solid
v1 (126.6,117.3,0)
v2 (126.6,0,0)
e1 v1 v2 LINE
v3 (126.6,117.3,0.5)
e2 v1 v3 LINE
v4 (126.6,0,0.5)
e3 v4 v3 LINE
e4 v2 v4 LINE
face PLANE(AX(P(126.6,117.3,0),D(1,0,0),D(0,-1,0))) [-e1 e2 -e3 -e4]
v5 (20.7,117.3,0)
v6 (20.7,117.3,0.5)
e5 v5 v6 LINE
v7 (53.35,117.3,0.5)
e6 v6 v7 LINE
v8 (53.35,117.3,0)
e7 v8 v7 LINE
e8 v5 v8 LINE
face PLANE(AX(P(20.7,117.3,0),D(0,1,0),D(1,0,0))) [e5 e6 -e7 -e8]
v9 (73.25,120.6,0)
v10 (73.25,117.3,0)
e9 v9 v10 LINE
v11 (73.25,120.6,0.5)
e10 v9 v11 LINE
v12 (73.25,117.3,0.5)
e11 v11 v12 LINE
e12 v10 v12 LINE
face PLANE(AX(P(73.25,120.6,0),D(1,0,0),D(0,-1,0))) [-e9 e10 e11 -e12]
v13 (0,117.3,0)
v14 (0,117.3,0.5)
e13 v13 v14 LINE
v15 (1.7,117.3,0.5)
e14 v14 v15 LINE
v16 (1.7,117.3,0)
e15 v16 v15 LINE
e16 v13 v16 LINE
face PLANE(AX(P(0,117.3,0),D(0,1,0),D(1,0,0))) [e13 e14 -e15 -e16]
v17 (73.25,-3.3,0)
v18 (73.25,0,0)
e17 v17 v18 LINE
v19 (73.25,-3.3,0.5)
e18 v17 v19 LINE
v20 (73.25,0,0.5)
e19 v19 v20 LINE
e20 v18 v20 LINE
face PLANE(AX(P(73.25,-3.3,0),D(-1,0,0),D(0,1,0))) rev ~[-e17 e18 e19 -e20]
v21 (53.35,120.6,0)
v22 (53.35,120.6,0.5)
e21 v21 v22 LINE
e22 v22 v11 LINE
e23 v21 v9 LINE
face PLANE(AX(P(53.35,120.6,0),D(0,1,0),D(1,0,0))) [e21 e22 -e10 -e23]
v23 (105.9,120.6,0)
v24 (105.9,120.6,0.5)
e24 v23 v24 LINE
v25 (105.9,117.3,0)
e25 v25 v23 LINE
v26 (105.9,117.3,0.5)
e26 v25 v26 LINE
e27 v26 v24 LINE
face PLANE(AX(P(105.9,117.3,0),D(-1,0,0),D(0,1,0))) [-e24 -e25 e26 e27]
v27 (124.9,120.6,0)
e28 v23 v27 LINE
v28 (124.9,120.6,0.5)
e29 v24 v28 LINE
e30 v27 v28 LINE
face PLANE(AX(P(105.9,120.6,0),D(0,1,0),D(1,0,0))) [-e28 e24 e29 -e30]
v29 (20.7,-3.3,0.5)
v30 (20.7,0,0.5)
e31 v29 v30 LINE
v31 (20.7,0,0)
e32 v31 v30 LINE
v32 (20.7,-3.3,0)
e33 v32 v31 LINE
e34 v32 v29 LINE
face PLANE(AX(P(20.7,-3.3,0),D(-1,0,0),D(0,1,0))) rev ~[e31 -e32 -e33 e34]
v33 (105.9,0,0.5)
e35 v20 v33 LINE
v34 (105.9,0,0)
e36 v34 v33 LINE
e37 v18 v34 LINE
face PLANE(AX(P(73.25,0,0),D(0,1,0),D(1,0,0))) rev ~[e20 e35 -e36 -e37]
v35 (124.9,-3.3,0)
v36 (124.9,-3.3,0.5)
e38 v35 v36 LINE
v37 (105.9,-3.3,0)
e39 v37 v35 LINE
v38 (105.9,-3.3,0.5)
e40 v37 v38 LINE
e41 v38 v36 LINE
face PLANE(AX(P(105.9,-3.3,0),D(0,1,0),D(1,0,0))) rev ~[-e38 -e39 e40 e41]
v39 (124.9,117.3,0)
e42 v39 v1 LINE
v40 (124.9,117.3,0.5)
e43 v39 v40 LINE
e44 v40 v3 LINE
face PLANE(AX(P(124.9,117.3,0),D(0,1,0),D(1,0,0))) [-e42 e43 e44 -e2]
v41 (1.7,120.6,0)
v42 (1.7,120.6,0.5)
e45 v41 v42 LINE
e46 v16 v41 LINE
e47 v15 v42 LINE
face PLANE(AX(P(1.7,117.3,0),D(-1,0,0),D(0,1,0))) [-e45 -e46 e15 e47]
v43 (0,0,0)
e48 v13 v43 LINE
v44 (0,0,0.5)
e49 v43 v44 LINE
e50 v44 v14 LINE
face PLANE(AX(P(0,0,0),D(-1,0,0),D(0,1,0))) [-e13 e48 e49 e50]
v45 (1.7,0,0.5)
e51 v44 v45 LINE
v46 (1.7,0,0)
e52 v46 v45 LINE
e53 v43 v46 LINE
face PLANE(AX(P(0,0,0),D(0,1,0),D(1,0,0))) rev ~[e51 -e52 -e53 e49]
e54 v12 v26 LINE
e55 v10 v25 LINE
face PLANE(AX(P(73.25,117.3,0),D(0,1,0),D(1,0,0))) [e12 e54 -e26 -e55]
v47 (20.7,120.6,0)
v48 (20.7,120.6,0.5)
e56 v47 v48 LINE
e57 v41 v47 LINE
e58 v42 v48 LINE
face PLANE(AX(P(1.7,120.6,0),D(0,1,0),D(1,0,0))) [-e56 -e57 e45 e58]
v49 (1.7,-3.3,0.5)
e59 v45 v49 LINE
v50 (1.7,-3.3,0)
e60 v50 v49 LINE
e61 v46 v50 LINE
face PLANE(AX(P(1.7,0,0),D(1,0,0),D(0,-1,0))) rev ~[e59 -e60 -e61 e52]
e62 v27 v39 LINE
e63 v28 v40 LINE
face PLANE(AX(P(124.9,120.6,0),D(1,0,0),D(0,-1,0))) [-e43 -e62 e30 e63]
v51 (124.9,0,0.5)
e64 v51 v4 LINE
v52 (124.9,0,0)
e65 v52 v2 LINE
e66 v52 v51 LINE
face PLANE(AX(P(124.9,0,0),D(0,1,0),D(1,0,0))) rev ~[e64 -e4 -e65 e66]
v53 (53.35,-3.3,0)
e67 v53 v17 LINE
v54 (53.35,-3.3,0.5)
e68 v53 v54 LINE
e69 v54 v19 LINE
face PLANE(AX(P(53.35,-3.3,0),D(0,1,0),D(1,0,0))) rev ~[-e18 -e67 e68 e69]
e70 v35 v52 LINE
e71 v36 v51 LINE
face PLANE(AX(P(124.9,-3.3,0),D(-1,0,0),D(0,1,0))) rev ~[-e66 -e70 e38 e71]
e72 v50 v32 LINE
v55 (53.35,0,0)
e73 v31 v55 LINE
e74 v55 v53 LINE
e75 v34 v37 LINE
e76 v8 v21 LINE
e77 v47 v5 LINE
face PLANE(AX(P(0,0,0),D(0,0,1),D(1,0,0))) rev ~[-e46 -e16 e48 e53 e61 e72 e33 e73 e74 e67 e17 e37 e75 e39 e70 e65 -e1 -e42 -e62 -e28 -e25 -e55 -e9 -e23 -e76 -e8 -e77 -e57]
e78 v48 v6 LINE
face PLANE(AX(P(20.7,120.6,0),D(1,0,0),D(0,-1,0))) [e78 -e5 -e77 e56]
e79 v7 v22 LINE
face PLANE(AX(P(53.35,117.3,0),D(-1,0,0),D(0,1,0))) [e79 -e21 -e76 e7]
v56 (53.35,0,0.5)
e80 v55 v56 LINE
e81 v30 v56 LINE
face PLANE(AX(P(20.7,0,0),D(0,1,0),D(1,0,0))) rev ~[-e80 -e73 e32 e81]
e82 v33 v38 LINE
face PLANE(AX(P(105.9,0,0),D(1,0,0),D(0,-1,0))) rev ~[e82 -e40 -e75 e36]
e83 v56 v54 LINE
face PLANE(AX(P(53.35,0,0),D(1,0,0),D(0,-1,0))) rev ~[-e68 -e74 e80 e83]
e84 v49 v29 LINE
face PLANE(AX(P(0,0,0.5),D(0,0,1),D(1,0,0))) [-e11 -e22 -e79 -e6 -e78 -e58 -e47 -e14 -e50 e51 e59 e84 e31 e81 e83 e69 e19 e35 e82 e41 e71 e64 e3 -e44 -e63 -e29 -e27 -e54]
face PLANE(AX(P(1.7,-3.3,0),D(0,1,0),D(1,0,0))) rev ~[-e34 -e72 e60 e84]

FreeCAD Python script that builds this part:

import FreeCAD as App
import Part
import Sketcher

V = App.Vector
Q = App.Units.Quantity

doc = App.newDocument("Part")
params = doc.addObject("Spreadsheet::Sheet", "Params")
for row, (alias, value) in enumerate([
    ("sketch1_width", "19 mm"),
    ("sketch1_width2", "19.9 mm"),
    ("sketch1_height", "3.3 mm"),
    ("sketch1_width3", "1.7 mm"),
    ("sketch1_height2", "117.3 mm"),
    ("pad1_length", "0.5 mm"),
], start=1):
    params.set(f"A{row}", alias)
    params.set(f"B{row}", "=" + value)
    params.setAlias(f"B{row}", alias)

body = doc.addObject("PartDesign::Body", "Body")

sketch1 = body.newObject("Sketcher::SketchObject", "Sketch")
sketch1.AttachmentSupport = (doc.getObject("XY_Plane"), [""])
sketch1.MapMode = "FlatFace"
sketch1.addGeometry(Part.LineSegment(V(0, 0, 0), V(1.7, 0, 0)), False)
sketch1.addGeometry(Part.LineSegment(V(1.7, 0, 0), V(1.7, -3.3, 0)), False)
sketch1.addGeometry(Part.LineSegment(V(1.7, -3.3, 0), V(20.7, -3.3, 0)), False)
sketch1.addGeometry(Part.LineSegment(V(20.7, -3.3, 0), V(20.7, 0, 0)), False)
sketch1.addGeometry(Part.LineSegment(V(20.7, 0, 0), V(53.4, 0, 0)), False)
sketch1.addGeometry(Part.LineSegment(V(53.4, 0, 0), V(53.4, -3.3, 0)), False)
sketch1.addGeometry(Part.LineSegment(V(53.4, -3.3, 0), V(73.2, -3.3, 0)), False)
sketch1.addGeometry(Part.LineSegment(V(73.2, -3.3, 0), V(73.2, 0, 0)), False)
sketch1.addGeometry(Part.LineSegment(V(73.2, 0, 0), V(105.9, 0, 0)), False)
sketch1.addGeometry(Part.LineSegment(V(105.9, 0, 0), V(105.9, -3.3, 0)), False)
sketch1.addGeometry(Part.LineSegment(V(105.9, -3.3, 0), V(124.9, -3.3, 0)), False)
sketch1.addGeometry(Part.LineSegment(V(124.9, -3.3, 0), V(124.9, 0, 0)), False)
sketch1.addGeometry(Part.LineSegment(V(124.9, 0, 0), V(126.6, 0, 0)), False)
sketch1.addGeometry(Part.LineSegment(V(126.6, 0, 0), V(126.6, 117.3, 0)), False)
sketch1.addGeometry(Part.LineSegment(V(126.6, 117.3, 0), V(124.9, 117.3, 0)), False)
sketch1.addGeometry(Part.LineSegment(V(124.9, 117.3, 0), V(124.9, 120.6, 0)), False)
sketch1.addGeometry(Part.LineSegment(V(124.9, 120.6, 0), V(105.9, 120.6, 0)), False)
sketch1.addGeometry(Part.LineSegment(V(105.9, 120.6, 0), V(105.9, 117.3, 0)), False)
sketch1.addGeometry(Part.LineSegment(V(105.9, 117.3, 0), V(73.2, 117.3, 0)), False)
sketch1.addGeometry(Part.LineSegment(V(73.2, 117.3, 0), V(73.2, 120.6, 0)), False)
sketch1.addGeometry(Part.LineSegment(V(73.2, 120.6, 0), V(53.4, 120.6, 0)), False)
sketch1.addGeometry(Part.LineSegment(V(53.4, 120.6, 0), V(53.4, 117.3, 0)), False)
sketch1.addGeometry(Part.LineSegment(V(53.4, 117.3, 0), V(20.7, 117.3, 0)), False)
sketch1.addGeometry(Part.LineSegment(V(20.7, 117.3, 0), V(20.7, 120.6, 0)), False)
sketch1.addGeometry(Part.LineSegment(V(20.7, 120.6, 0), V(1.7, 120.6, 0)), False)
sketch1.addGeometry(Part.LineSegment(V(1.7, 120.6, 0), V(1.7, 117.3, 0)), False)
sketch1.addGeometry(Part.LineSegment(V(1.7, 117.3, 0), V(0, 117.3, 0)), False)
sketch1.addGeometry(Part.LineSegment(V(0, 117.3, 0), V(0, 0, 0)), False)
sketch1.addConstraint(Sketcher.Constraint("Coincident", 0, 2, 1, 1))
sketch1.addConstraint(Sketcher.Constraint("Coincident", 1, 2, 2, 1))
sketch1.addConstraint(Sketcher.Constraint("Coincident", 2, 2, 3, 1))
sketch1.addConstraint(Sketcher.Constraint("Coincident", 3, 2, 4, 1))
sketch1.addConstraint(Sketcher.Constraint("Coincident", 4, 2, 5, 1))
sketch1.addConstraint(Sketcher.Constraint("Coincident", 5, 2, 6, 1))
sketch1.addConstraint(Sketcher.Constraint("Coincident", 6, 2, 7, 1))
sketch1.addConstraint(Sketcher.Constraint("Coincident", 7, 2, 8, 1))
sketch1.addConstraint(Sketcher.Constraint("Coincident", 8, 2, 9, 1))
sketch1.addConstraint(Sketcher.Constraint("Coincident", 9, 2, 10, 1))
sketch1.addConstraint(Sketcher.Constraint("Coincident", 10, 2, 11, 1))
sketch1.addConstraint(Sketcher.Constraint("Coincident", 11, 2, 12, 1))
sketch1.addConstraint(Sketcher.Constraint("Coincident", 12, 2, 13, 1))
sketch1.addConstraint(Sketcher.Constraint("Coincident", 13, 2, 14, 1))
sketch1.addConstraint(Sketcher.Constraint("Coincident", 14, 2, 15, 1))
sketch1.addConstraint(Sketcher.Constraint("Coincident", 15, 2, 16, 1))
sketch1.addConstraint(Sketcher.Constraint("Coincident", 16, 2, 17, 1))
sketch1.addConstraint(Sketcher.Constraint("Coincident", 17, 2, 18, 1))
sketch1.addConstraint(Sketcher.Constraint("Coincident", 18, 2, 19, 1))
sketch1.addConstraint(Sketcher.Constraint("Coincident", 19, 2, 20, 1))
sketch1.addConstraint(Sketcher.Constraint("Coincident", 20, 2, 21, 1))
sketch1.addConstraint(Sketcher.Constraint("Coincident", 21, 2, 22, 1))
sketch1.addConstraint(Sketcher.Constraint("Coincident", 22, 2, 23, 1))
sketch1.addConstraint(Sketcher.Constraint("Coincident", 23, 2, 24, 1))
sketch1.addConstraint(Sketcher.Constraint("Coincident", 24, 2, 25, 1))
sketch1.addConstraint(Sketcher.Constraint("Coincident", 25, 2, 26, 1))
sketch1.addConstraint(Sketcher.Constraint("Coincident", 26, 2, 27, 1))
sketch1.addConstraint(Sketcher.Constraint("Coincident", 27, 2, 0, 1))
sketch1.addConstraint(Sketcher.Constraint("Horizontal", 0))
sketch1.addConstraint(Sketcher.Constraint("Vertical", 1))
sketch1.addConstraint(Sketcher.Constraint("Horizontal", 2))
sketch1.addConstraint(Sketcher.Constraint("Vertical", 3))
sketch1.addConstraint(Sketcher.Constraint("Horizontal", 4))
sketch1.addConstraint(Sketcher.Constraint("Vertical", 5))
sketch1.addConstraint(Sketcher.Constraint("Horizontal", 6))
sketch1.addConstraint(Sketcher.Constraint("Vertical", 7))
sketch1.addConstraint(Sketcher.Constraint("Horizontal", 8))
sketch1.addConstraint(Sketcher.Constraint("Vertical", 9))
sketch1.addConstraint(Sketcher.Constraint("Horizontal", 10))
sketch1.addConstraint(Sketcher.Constraint("Vertical", 11))
sketch1.addConstraint(Sketcher.Constraint("Horizontal", 12))
sketch1.addConstraint(Sketcher.Constraint("Vertical", 13))
sketch1.addConstraint(Sketcher.Constraint("Horizontal", 14))
sketch1.addConstraint(Sketcher.Constraint("Vertical", 15))
sketch1.addConstraint(Sketcher.Constraint("Horizontal", 16))
sketch1.addConstraint(Sketcher.Constraint("Vertical", 17))
sketch1.addConstraint(Sketcher.Constraint("Horizontal", 18))
sketch1.addConstraint(Sketcher.Constraint("Vertical", 19))
sketch1.addConstraint(Sketcher.Constraint("Horizontal", 20))
sketch1.addConstraint(Sketcher.Constraint("Vertical", 21))
sketch1.addConstraint(Sketcher.Constraint("Horizontal", 22))
sketch1.addConstraint(Sketcher.Constraint("Vertical", 23))
sketch1.addConstraint(Sketcher.Constraint("Horizontal", 24))
sketch1.addConstraint(Sketcher.Constraint("Vertical", 25))
sketch1.addConstraint(Sketcher.Constraint("Horizontal", 26))
sketch1.addConstraint(Sketcher.Constraint("Vertical", 27))
sketch1.addConstraint(Sketcher.Constraint("Coincident", 27, 2, -1, 1))
sketch1.addConstraint(Sketcher.Constraint("PointOnObject", 3, 2, -1))
sketch1.addConstraint(Sketcher.Constraint("PointOnObject", 7, 2, -1))
sketch1.addConstraint(Sketcher.Constraint("PointOnObject", 11, 2, -1))
sketch1.addConstraint(Sketcher.Constraint("Horizontal", 2, 2, 5, 2))
sketch1.addConstraint(Sketcher.Constraint("Horizontal", 6, 2, 9, 2))
sketch1.addConstraint(Sketcher.Constraint("Horizontal", 14, 2, 17, 2))
sketch1.addConstraint(Sketcher.Constraint("Horizontal", 16, 2, 19, 2))
sketch1.addConstraint(Sketcher.Constraint("Horizontal", 18, 2, 21, 2))
sketch1.addConstraint(Sketcher.Constraint("Horizontal", 20, 2, 23, 2))
sketch1.addConstraint(Sketcher.Constraint("Horizontal", 22, 2, 25, 2))
sketch1.addConstraint(Sketcher.Constraint("Vertical", 11, 2, 14, 2))
sketch1.addConstraint(Sketcher.Constraint("Vertical", 9, 2, 16, 2))
sketch1.addConstraint(Sketcher.Constraint("Vertical", 7, 2, 18, 2))
sketch1.addConstraint(Sketcher.Constraint("Vertical", 5, 2, 20, 2))
sketch1.addConstraint(Sketcher.Constraint("Vertical", 3, 2, 22, 2))
sketch1.addConstraint(Sketcher.Constraint("Vertical", 1, 2, 24, 2))
sketch1.addConstraint(Sketcher.Constraint("Equal", 4, 8))
sketch1.addConstraint(Sketcher.Constraint("Equal", 2, 10))
sketch1.addConstraint(Sketcher.Constraint("Equal", 0, 12))
sketch1.addConstraint(Sketcher.Constraint("Equal", 11, 15))
sketch1.addConstraint(Sketcher.Constraint("DistanceX", 2, 1, 2, 2, Q("19 mm")))
sketch1.addConstraint(Sketcher.Constraint("DistanceX", 6, 1, 6, 2, Q("19.9 mm")))
sketch1.addConstraint(Sketcher.Constraint("DistanceY", 1, 2, 1, 1, Q("3.3 mm")))
sketch1.addConstraint(Sketcher.Constraint("DistanceX", -1, 1, 12, 2, Q("126.6 mm")))
sketch1.addConstraint(Sketcher.Constraint("DistanceX", 0, 1, 0, 2, Q("1.7 mm")))
sketch1.addConstraint(Sketcher.Constraint("DistanceY", 13, 1, 13, 2, Q("117.3 mm")))
sketch1.setExpression("Constraints[77]", "Params.sketch1_width")
sketch1.setExpression("Constraints[78]", "Params.sketch1_width2")
sketch1.setExpression("Constraints[79]", "Params.sketch1_height")
sketch1.setExpression("Constraints[81]", "Params.sketch1_width3")
sketch1.setExpression("Constraints[82]", "Params.sketch1_height2")
pad1 = body.newObject("PartDesign::Pad", "Pad")
pad1.Profile = sketch1
pad1.setExpression("Length", "Params.pad1_length")

doc.recompute()
